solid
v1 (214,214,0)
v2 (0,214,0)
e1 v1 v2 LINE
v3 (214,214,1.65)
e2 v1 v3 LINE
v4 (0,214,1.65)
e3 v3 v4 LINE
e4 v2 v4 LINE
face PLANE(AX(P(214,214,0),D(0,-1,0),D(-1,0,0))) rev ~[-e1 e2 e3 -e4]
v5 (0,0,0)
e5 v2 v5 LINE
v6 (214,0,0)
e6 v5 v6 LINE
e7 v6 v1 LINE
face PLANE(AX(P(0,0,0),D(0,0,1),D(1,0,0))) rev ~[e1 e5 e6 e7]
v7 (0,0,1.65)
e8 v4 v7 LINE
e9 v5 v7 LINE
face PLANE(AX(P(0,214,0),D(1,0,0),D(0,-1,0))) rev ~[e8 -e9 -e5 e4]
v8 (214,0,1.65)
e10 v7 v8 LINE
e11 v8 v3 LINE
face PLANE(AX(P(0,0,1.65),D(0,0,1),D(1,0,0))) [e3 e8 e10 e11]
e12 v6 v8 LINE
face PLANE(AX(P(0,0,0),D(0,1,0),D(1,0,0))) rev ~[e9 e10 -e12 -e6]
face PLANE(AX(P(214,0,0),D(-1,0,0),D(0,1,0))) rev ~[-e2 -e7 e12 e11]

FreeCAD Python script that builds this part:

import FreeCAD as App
import Part
import Sketcher
Q = App.Units.Quantity

doc = App.newDocument("Part")
body = doc.addObject("PartDesign::Body", "Body")

# Sketch on XY plane
sketch1 = body.newObject("Sketcher::SketchObject", "Sketch")
sketch1.AttachmentSupport = (doc.getObject("XY_Plane"), [""])
sketch1.MapMode = "FlatFace"
sketch1.addGeometry([
    Part.LineSegment(App.Vector(0, 214, 0), App.Vector(0, 0, 0)),
    Part.LineSegment(App.Vector(0, 0, 0), App.Vector(214, 0, 0)),
    Part.LineSegment(App.Vector(214, 0, 0), App.Vector(214, 214, 0)),
    Part.LineSegment(App.Vector(214, 214, 0), App.Vector(0, 214, 0)),
], False)
sketch1.addConstraint([
    Sketcher.Constraint("Coincident", 0, 2, 1, 1),
    Sketcher.Constraint("Coincident", 1, 2, 2, 1),
    Sketcher.Constraint("Coincident", 2, 2, 3, 1),
    Sketcher.Constraint("Coincident", 3, 2, 0, 1),
    Sketcher.Constraint("Vertical", 0),
    Sketcher.Constraint("Horizontal", 1),
    Sketcher.Constraint("Vertical", 2),
    Sketcher.Constraint("Horizontal", 3),
    Sketcher.Constraint("Coincident", 0, 2, -1, 1),
    Sketcher.Constraint("Equal", 3, 0),
    Sketcher.Constraint("DistanceX", 1, 1, 1, 2, Q("214 mm")),
])
pad1 = body.newObject("PartDesign::Pad", "Pad")
pad1.Profile = sketch1
pad1.Length = 1.65

doc.recompute()
